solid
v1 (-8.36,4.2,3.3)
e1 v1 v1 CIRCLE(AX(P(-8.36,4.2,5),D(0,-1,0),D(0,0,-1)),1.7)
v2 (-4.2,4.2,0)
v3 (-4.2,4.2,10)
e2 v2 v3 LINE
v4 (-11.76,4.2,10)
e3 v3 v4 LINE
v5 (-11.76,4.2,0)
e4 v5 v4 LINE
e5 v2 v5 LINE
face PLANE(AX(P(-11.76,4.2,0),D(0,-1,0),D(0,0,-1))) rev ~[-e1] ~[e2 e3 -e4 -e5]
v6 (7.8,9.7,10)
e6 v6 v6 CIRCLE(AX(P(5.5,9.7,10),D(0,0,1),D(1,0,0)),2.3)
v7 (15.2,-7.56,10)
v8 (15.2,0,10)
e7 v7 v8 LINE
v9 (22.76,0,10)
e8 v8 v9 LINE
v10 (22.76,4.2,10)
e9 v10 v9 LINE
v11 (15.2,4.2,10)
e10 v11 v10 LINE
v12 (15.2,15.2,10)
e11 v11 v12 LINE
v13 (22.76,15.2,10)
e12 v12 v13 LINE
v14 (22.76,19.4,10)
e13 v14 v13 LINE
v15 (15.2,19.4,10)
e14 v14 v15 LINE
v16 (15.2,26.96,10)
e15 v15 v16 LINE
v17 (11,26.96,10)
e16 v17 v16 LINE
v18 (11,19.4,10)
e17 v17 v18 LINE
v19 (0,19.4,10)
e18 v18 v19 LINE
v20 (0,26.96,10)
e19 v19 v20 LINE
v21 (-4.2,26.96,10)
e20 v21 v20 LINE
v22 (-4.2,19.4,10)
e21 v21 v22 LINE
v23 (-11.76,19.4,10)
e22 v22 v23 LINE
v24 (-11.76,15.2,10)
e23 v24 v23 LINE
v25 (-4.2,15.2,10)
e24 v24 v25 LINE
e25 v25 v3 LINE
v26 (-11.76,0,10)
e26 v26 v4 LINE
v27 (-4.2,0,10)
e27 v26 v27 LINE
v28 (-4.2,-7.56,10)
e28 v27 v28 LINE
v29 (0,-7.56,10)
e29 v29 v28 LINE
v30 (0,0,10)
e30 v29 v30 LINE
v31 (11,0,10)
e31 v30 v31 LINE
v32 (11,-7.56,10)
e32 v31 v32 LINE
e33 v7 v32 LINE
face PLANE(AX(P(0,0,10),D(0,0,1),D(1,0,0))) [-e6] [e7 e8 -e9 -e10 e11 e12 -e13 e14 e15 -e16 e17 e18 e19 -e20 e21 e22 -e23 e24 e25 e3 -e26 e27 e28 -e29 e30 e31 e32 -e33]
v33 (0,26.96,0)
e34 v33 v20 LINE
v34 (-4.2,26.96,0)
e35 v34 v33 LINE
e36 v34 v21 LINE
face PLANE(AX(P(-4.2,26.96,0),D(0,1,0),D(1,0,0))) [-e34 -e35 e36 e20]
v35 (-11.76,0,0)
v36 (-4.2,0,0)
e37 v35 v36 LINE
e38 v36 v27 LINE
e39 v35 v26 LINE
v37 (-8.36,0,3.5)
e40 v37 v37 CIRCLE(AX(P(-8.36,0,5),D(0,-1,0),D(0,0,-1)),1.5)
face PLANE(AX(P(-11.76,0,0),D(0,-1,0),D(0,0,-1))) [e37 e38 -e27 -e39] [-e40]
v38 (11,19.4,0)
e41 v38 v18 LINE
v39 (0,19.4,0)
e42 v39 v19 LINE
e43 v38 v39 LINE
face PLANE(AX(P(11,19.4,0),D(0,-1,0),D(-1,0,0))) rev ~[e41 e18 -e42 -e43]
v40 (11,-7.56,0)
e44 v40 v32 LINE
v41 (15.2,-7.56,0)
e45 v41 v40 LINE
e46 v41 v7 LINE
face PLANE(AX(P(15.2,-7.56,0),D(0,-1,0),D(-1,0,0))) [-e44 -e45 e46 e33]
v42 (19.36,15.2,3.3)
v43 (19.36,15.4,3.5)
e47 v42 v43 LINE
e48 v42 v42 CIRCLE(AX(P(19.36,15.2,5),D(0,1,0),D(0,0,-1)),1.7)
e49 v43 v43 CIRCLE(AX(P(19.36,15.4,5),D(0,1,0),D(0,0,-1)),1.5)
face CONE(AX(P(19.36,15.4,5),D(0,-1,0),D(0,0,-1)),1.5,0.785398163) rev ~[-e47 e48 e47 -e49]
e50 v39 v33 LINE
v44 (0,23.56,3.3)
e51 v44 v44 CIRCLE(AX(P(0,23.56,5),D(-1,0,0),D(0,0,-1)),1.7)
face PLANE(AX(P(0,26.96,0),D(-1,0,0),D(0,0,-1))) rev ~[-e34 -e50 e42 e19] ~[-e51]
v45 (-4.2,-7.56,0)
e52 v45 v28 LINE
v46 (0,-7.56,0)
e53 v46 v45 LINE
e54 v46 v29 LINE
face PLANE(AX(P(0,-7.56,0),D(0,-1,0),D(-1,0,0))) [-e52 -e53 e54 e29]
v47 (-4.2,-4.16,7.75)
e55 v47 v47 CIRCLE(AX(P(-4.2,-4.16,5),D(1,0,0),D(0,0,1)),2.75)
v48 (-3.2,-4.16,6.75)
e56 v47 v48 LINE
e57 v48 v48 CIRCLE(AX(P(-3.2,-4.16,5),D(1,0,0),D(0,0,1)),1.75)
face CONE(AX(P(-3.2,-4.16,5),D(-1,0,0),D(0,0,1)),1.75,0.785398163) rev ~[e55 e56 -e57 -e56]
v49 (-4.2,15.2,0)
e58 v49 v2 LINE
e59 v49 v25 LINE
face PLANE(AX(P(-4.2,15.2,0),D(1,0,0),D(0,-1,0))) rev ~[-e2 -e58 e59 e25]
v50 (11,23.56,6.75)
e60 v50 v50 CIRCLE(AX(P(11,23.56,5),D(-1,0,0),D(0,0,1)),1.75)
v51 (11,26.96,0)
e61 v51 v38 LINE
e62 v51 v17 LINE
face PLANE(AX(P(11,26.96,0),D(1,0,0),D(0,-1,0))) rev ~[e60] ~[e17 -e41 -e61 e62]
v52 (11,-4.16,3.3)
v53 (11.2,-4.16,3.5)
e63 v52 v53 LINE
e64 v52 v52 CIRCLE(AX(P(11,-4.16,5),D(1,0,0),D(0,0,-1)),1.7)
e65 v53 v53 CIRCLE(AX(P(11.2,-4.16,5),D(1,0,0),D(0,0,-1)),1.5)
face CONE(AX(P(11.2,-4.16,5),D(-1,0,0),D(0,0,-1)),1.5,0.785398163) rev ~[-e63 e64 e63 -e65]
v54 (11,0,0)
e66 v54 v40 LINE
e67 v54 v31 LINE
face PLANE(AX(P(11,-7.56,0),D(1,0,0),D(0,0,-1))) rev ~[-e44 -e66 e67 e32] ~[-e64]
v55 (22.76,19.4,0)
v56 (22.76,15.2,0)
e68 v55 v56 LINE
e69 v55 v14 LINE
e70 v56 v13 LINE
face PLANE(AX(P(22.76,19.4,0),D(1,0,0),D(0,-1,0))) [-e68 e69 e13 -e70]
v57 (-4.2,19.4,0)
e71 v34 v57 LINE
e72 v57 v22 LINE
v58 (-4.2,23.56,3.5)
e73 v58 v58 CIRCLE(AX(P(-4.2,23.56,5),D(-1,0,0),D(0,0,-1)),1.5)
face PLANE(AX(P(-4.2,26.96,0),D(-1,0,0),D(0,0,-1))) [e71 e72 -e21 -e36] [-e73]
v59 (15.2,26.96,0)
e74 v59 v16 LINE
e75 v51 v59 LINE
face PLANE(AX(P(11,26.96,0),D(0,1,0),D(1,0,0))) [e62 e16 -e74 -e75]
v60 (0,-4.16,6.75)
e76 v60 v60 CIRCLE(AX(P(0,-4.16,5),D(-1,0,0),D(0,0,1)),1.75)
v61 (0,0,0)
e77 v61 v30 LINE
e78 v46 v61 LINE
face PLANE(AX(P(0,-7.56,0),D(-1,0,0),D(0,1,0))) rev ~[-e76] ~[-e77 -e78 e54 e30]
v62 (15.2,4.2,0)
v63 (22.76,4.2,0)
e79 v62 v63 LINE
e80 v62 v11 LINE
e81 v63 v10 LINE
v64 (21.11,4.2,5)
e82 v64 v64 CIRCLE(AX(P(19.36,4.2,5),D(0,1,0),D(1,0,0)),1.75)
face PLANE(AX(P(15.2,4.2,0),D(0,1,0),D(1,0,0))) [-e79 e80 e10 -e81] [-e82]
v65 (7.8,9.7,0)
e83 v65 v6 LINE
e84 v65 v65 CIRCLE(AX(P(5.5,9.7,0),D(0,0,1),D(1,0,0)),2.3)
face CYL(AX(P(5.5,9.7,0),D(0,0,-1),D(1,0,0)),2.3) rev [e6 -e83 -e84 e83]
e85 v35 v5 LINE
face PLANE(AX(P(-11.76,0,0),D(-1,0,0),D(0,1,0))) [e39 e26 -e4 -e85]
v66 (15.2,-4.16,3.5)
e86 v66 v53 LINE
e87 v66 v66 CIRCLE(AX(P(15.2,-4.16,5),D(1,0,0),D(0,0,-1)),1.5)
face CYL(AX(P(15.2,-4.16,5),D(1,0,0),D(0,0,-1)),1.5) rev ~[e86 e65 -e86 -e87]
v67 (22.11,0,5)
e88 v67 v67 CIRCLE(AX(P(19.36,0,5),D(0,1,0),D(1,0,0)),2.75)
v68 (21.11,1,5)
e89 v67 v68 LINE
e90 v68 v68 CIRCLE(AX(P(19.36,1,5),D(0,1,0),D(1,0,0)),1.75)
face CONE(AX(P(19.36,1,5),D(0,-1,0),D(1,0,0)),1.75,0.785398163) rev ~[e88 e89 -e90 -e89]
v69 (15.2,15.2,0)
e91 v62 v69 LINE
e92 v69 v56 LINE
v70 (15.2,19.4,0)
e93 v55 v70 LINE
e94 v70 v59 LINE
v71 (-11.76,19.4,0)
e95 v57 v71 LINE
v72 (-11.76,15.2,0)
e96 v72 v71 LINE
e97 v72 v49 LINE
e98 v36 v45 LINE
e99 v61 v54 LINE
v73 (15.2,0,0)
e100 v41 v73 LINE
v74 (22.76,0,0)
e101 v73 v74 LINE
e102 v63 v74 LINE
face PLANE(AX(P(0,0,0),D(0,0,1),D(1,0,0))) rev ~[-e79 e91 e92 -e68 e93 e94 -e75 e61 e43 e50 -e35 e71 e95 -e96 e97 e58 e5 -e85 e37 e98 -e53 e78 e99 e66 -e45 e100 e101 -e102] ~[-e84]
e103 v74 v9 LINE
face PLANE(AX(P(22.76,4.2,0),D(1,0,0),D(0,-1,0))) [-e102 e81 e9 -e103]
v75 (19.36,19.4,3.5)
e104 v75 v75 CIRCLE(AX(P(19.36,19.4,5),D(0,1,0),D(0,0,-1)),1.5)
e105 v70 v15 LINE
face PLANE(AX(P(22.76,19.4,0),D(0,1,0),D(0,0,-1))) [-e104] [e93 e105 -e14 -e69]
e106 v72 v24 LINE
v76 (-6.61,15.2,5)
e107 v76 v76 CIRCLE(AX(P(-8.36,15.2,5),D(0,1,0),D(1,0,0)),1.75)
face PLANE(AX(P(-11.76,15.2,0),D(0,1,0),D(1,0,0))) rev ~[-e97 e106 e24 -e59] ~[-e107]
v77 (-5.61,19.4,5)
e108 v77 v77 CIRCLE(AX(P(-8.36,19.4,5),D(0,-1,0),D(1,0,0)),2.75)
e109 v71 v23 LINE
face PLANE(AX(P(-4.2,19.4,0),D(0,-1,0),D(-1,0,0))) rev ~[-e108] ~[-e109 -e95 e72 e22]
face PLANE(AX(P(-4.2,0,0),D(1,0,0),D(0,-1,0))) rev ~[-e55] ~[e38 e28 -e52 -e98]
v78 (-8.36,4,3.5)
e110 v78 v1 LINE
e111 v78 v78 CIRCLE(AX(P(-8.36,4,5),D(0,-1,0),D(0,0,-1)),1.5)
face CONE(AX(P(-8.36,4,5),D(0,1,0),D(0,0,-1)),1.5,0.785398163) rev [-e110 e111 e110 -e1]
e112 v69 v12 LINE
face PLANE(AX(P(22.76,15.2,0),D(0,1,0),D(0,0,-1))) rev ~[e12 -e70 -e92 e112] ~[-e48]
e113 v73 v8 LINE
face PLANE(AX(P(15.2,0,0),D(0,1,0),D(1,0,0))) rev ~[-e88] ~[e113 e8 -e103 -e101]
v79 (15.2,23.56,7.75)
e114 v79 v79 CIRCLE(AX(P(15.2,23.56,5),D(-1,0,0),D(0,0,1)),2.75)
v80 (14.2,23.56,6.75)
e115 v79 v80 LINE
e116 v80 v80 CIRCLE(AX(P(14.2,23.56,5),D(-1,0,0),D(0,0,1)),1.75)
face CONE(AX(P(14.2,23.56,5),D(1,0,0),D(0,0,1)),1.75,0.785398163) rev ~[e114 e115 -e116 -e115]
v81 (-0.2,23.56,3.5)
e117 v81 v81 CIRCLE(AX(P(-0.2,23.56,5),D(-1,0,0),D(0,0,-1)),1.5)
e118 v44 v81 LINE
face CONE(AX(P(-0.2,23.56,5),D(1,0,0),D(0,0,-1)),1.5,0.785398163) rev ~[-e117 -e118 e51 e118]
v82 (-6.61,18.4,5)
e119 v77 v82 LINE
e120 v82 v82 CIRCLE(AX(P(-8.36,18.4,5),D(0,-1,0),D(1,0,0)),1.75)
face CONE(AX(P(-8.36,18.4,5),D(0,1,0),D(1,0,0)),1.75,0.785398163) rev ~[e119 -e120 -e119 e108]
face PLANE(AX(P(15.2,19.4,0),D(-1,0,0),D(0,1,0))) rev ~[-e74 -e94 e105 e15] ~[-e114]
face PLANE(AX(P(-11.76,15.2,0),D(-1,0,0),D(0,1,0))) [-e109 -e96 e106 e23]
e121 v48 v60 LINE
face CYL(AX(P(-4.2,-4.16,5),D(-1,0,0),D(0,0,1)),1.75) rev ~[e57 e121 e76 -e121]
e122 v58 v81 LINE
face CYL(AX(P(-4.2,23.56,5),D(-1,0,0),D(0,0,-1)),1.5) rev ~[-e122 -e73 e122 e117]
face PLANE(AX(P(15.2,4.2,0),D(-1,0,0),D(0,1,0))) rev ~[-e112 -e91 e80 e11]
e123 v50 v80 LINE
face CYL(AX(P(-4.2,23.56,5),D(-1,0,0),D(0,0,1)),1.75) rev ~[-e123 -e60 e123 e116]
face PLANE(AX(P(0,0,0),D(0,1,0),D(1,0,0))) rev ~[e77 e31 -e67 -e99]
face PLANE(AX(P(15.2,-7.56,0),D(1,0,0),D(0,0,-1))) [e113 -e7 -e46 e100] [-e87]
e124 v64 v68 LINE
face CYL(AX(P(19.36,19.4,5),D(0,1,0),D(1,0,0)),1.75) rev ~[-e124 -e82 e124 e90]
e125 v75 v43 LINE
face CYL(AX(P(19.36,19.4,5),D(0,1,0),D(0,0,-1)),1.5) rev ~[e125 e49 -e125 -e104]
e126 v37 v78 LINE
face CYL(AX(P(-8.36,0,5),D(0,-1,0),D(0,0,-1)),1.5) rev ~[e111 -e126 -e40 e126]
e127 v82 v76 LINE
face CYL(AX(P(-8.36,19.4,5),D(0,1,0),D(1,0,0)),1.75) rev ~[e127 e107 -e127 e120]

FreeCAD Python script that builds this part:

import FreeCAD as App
import Part
import Sketcher


def edges_at(feature, points):
    """Names of the edges that pass closest to the given points."""
    edges = feature.Shape.Edges
    near = lambda p: min(range(len(edges)), key=lambda i: edges[i].distToShape(Part.Vertex(*p))[0])
    return sorted({f"Edge{near(p) + 1}" for p in points})

doc = App.newDocument("Part")
body = doc.addObject("PartDesign::Body", "Body")

# Sketch on XY plane
sketch1 = doc.addObject("Sketcher::SketchObject", "Sketch")
body.addObject(sketch1)
sketch1.AttachmentSupport = (doc.XY_Plane, [""])
sketch1.MapMode = "FlatFace"
sketch1.addGeometry([
    Part.LineSegment(App.Vector(-4.2, -7.6, 0), App.Vector(0, -7.6, 0)),  # 0
    Part.LineSegment(App.Vector(0, -7.6, 0), App.Vector(0, 0, 0)),  # 1
    Part.LineSegment(App.Vector(0, 0, 0), App.Vector(11, 0, 0)),  # 2
    Part.LineSegment(App.Vector(11, 0, 0), App.Vector(11, -7.6, 0)),  # 3
    Part.LineSegment(App.Vector(11, -7.6, 0), App.Vector(15.2, -7.6, 0)),  # 4
    Part.LineSegment(App.Vector(15.2, -7.6, 0), App.Vector(15.2, 0, 0)),  # 5
    Part.LineSegment(App.Vector(15.2, 0, 0), App.Vector(22.8, 0, 0)),  # 6
    Part.LineSegment(App.Vector(22.8, 0, 0), App.Vector(22.8, 4.2, 0)),  # 7
    Part.LineSegment(App.Vector(22.8, 4.2, 0), App.Vector(15.2, 4.2, 0)),  # 8
    Part.LineSegment(App.Vector(15.2, 4.2, 0), App.Vector(15.2, 15.2, 0)),  # 9
    Part.LineSegment(App.Vector(15.2, 15.2, 0), App.Vector(22.8, 15.2, 0)),  # 10
    Part.LineSegment(App.Vector(22.8, 15.2, 0), App.Vector(22.8, 19.4, 0)),  # 11
    Part.LineSegment(App.Vector(22.8, 19.4, 0), App.Vector(15.2, 19.4, 0)),  # 12
    Part.LineSegment(App.Vector(15.2, 19.4, 0), App.Vector(15.2, 27, 0)),  # 13
    Part.LineSegment(App.Vector(15.2, 27, 0), App.Vector(11, 27, 0)),  # 14
    Part.LineSegment(App.Vector(11, 27, 0), App.Vector(11, 19.4, 0)),  # 15
    Part.LineSegment(App.Vector(11, 19.4, 0), App.Vector(0, 19.4, 0)),  # 16
    Part.LineSegment(App.Vector(0, 19.4, 0), App.Vector(0, 27, 0)),  # 17
    Part.LineSegment(App.Vector(0, 27, 0), App.Vector(-4.2, 27, 0)),  # 18
    Part.LineSegment(App.Vector(-4.2, 27, 0), App.Vector(-4.2, 19.4, 0)),  # 19
    Part.LineSegment(App.Vector(-4.2, 19.4, 0), App.Vector(-11.8, 19.4, 0)),  # 20
    Part.LineSegment(App.Vector(-11.8, 19.4, 0), App.Vector(-11.8, 15.2, 0)),  # 21
    Part.LineSegment(App.Vector(-11.8, 15.2, 0), App.Vector(-4.2, 15.2, 0)),  # 22
    Part.LineSegment(App.Vector(-4.2, 15.2, 0), App.Vector(-4.2, 4.2, 0)),  # 23
    Part.LineSegment(App.Vector(-4.2, 4.2, 0), App.Vector(-11.8, 4.2, 0)),  # 24
    Part.LineSegment(App.Vector(-11.8, 4.2, 0), App.Vector(-11.8, 0, 0)),  # 25
    Part.LineSegment(App.Vector(-11.8, 0, 0), App.Vector(-4.2, 0, 0)),  # 26
    Part.LineSegment(App.Vector(-4.2, 0, 0), App.Vector(-4.2, -7.6, 0)),  # 27
    Part.Circle(App.Vector(5.5, 9.7, 0), App.Vector(0, 0, 1), 2.3),  # 28
], False)
sketch1.addConstraint([
    Sketcher.Constraint("Coincident", 0, 2, 1, 1),
    Sketcher.Constraint("Coincident", 1, 2, 2, 1),
    Sketcher.Constraint("Coincident", 2, 2, 3, 1),
    Sketcher.Constraint("Coincident", 3, 2, 4, 1),
    Sketcher.Constraint("Coincident", 4, 2, 5, 1),
    Sketcher.Constraint("Coincident", 5, 2, 6, 1),
    Sketcher.Constraint("Coincident", 6, 2, 7, 1),
    Sketcher.Constraint("Coincident", 7, 2, 8, 1),
    Sketcher.Constraint("Coincident", 8, 2, 9, 1),
    Sketcher.Constraint("Coincident", 9, 2, 10, 1),
    Sketcher.Constraint("Coincident", 10, 2, 11, 1),
    Sketcher.Constraint("Coincident", 11, 2, 12, 1),
    Sketcher.Constraint("Coincident", 12, 2, 13, 1),
    Sketcher.Constraint("Coincident", 13, 2, 14, 1),
    Sketcher.Constraint("Coincident", 14, 2, 15, 1),
    Sketcher.Constraint("Coincident", 15, 2, 16, 1),
    Sketcher.Constraint("Coincident", 16, 2, 17, 1),
    Sketcher.Constraint("Coincident", 17, 2, 18, 1),
    Sketcher.Constraint("Coincident", 18, 2, 19, 1),
    Sketcher.Constraint("Coincident", 19, 2, 20, 1),
    Sketcher.Constraint("Coincident", 20, 2, 21, 1),
    Sketcher.Constraint("Coincident", 21, 2, 22, 1),
    Sketcher.Constraint("Coincident", 22, 2, 23, 1),
    Sketcher.Constraint("Coincident", 23, 2, 24, 1),
    Sketcher.Constraint("Coincident", 24, 2, 25, 1),
    Sketcher.Constraint("Coincident", 25, 2, 26, 1),
    Sketcher.Constraint("Coincident", 26, 2, 27, 1),
    Sketcher.Constraint("Coincident", 27, 2, 0, 1),
    Sketcher.Constraint("Horizontal", 0),
    Sketcher.Constraint("Vertical", 1),
    Sketcher.Constraint("Horizontal", 2),
    Sketcher.Constraint("Vertical", 3),
    Sketcher.Constraint("Horizontal", 4),
    Sketcher.Constraint("Vertical", 5),
    Sketcher.Constraint("Horizontal", 6),
    Sketcher.Constraint("Vertical", 7),
    Sketcher.Constraint("Horizontal", 8),
    Sketcher.Constraint("Vertical", 9),
    Sketcher.Constraint("Horizontal", 10),
    Sketcher.Constraint("Vertical", 11),
    Sketcher.Constraint("Horizontal", 12),
    Sketcher.Constraint("Vertical", 13),
    Sketcher.Constraint("Horizontal", 14),
    Sketcher.Constraint("Vertical", 15),
    Sketcher.Constraint("Horizontal", 16),
    Sketcher.Constraint("Vertical", 17),
    Sketcher.Constraint("Horizontal", 18),
    Sketcher.Constraint("Vertical", 19),
    Sketcher.Constraint("Horizontal", 20),
    Sketcher.Constraint("Vertical", 21),
    Sketcher.Constraint("Horizontal", 22),
    Sketcher.Constraint("Vertical", 23),
    Sketcher.Constraint("Horizontal", 24),
    Sketcher.Constraint("Vertical", 25),
    Sketcher.Constraint("Horizontal", 26),
    Sketcher.Constraint("Vertical", 27),
    Sketcher.Constraint("Coincident", 1, 2, -1, 1),
    Sketcher.Constraint("PointOnObject", 5, 2, -1),
    Sketcher.Constraint("PointOnObject", 16, 2, -2),
    Sketcher.Constraint("PointOnObject", 25, 2, -1),
    Sketcher.Constraint("Horizontal", 0, 2, 3, 2),
    Sketcher.Constraint("Horizontal", 12, 2, 15, 2),
    Sketcher.Constraint("Horizontal", 14, 2, 17, 2),
    Sketcher.Constraint("Horizontal", 16, 2, 19, 2),
    Sketcher.Constraint("Horizontal", 10, 2, 21, 2),
    Sketcher.Constraint("Horizontal", 8, 2, 23, 2),
    Sketcher.Constraint("Vertical", 5, 2, 8, 2),
    Sketcher.Constraint("Vertical", 7, 2, 10, 2),
    Sketcher.Constraint("Vertical", 9, 2, 12, 2),
    Sketcher.Constraint("Vertical", 3, 2, 14, 2),
    Sketcher.Constraint("Vertical", 19, 2, 22, 2),
    Sketcher.Constraint("Vertical", 21, 2, 24, 2),
    Sketcher.Constraint("Vertical", 23, 2, 26, 2),
    Sketcher.Constraint("Equal", 0, 4),
    Sketcher.Constraint("Equal", 12, 20),
    Sketcher.Constraint("Equal", 26, 1),
    Sketcher.Constraint("Equal", 18, 7),
    Sketcher.Constraint("Equal", 16, 9),
    Sketcher.Constraint("Equal", 7, 11),
    Sketcher.Constraint("Equal", 5, 13),
    Sketcher.Constraint("Diameter", 28, 4.6),
    Sketcher.Constraint("DistanceX", 2, 1, 2, 2, 11.0),
    Sketcher.Constraint("DistanceX", 0, 1, 0, 2, 4.2),
    Sketcher.Constraint("DistanceX", 6, 1, 6, 2, 7.56),
    Sketcher.Constraint("DistanceX", -1, 1, 28, 3, 5.5),
    Sketcher.Constraint("DistanceY", -1, 1, 28, 3, 9.7),
])
pad1 = doc.addObject("PartDesign::Pad", "Pad")
body.addObject(pad1)
pad1.Profile = sketch1
pad1.Length = 10

# Sketch on XZ plane
sketch2 = doc.addObject("Sketcher::SketchObject", "Sketch001")
body.addObject(sketch2)
sketch2.AttachmentSupport = (doc.XZ_Plane, [""])
sketch2.MapMode = "FlatFace"
sketch2.AttachmentOffset = App.Placement(App.Vector(0, 0, -19.4), App.Rotation())
sketch2.addGeometry([
    Part.Circle(App.Vector(-8.4, 5, 0), App.Vector(0, 0, 1), 1.8),
    Part.Circle(App.Vector(19.4, 5, 0), App.Vector(0, 0, 1), 1.8),
], False)
sketch2.addConstraint([
    Sketcher.Constraint("Equal", 0, 1),
    Sketcher.Constraint("Horizontal", 0, 3, 1, 3),
    Sketcher.Constraint("Diameter", 0, 3.5),
    Sketcher.Constraint("DistanceY", -1, 1, 0, 3, 5.0),
    Sketcher.Constraint("DistanceX", 0, 3, -1, 1, 8.36),
    Sketcher.Constraint("DistanceX", -1, 1, 1, 3, 19.36),
])
pocket1 = doc.addObject("PartDesign::Pocket", "Pocket")
body.addObject(pocket1)
pocket1.Profile = sketch2
pocket1.Type = "ThroughAll"
pocket1.Reversed = True

# Sketch on YZ plane
sketch3 = doc.addObject("Sketcher::SketchObject", "Sketch002")
body.addObject(sketch3)
sketch3.AttachmentSupport = (doc.YZ_Plane, [""])
sketch3.MapMode = "FlatFace"
sketch3.AttachmentOffset = App.Placement(App.Vector(0, 0, -4.2), App.Rotation())
sketch3.addGeometry([
    Part.Circle(App.Vector(-4.2, 5, 0), App.Vector(0, 0, 1), 1.8),
    Part.Circle(App.Vector(23.6, 5, 0), App.Vector(0, 0, 1), 1.8),
], False)
sketch3.addConstraint([
    Sketcher.Constraint("Equal", 0, 1),
    Sketcher.Constraint("Horizontal", 0, 3, 1, 3),
    Sketcher.Constraint("Diameter", 0, 3.5),
    Sketcher.Constraint("DistanceY", -1, 1, 0, 3, 5.0),
    Sketcher.Constraint("DistanceX", 0, 3, -1, 1, 4.16),
    Sketcher.Constraint("DistanceX", -1, 1, 1, 3, 23.56),
])
pocket2 = doc.addObject("PartDesign::Pocket", "Pocket001")
body.addObject(pocket2)
pocket2.Profile = sketch3
pocket2.Type = "ThroughAll"
pocket2.Reversed = True
doc.recompute()

chamfer = doc.addObject("PartDesign::Chamfer", "Chamfer")
body.addObject(chamfer)
chamfer.Base = (pocket2, edges_at(pocket2, [
    (-4.2, -4.16, 3.25),
    (17.61, 0, 5),
    (15.2, 23.56, 3.25),
    (-10.11, 19.4, 5),
]))
chamfer.Size = 1

# Sketch on YZ plane
sketch4 = doc.addObject("Sketcher::SketchObject", "Sketch003")
body.addObject(sketch4)
sketch4.AttachmentSupport = (doc.YZ_Plane, [""])
sketch4.MapMode = "FlatFace"
sketch4.AttachmentOffset = App.Placement(App.Vector(0, 0, 15.2), App.Rotation())
sketch4.addGeometry([
    Part.Circle(App.Vector(-4.2, 5, 0), App.Vector(0, 0, 1), 1.8),
    Part.Circle(App.Vector(-4.2, 5, 0), App.Vector(0, 0, 1), 1.5),
], False)
sketch4.addConstraint([
    Sketcher.Constraint("Coincident", 1, 3, 0, 3),
    Sketcher.Constraint("Diameter", 1, 3.0),
    Sketcher.Constraint("Diameter", 0, 3.5),
    Sketcher.Constraint("DistanceY", -1, 1, 0, 3, 5.0),
    Sketcher.Constraint("DistanceX", 0, 3, -1, 1, 4.16),
])
pad2 = doc.addObject("PartDesign::Pad", "Pad001")
body.addObject(pad2)
pad2.Profile = sketch4
pad2.Length = 4.2
pad2.Reversed = True
doc.recompute()

datumline = doc.addObject("PartDesign::Line", "DatumLine")
body.addObject(datumline)
datumline.Placement = App.Placement(App.Vector(5.5, 9.7, 0), App.Rotation(App.Vector(0, 0, 1), App.Vector(0, 0, 1)))
polarpattern = doc.addObject("PartDesign::PolarPattern", "PolarPattern")
body.addObject(polarpattern)
polarpattern.Originals = [pad2]
polarpattern.Axis = (datumline, [""])
polarpattern.Angle = 360
polarpattern.Occurrences = 4
body.Tip = polarpattern
doc.recompute()

chamfer2 = doc.addObject("PartDesign::Chamfer", "Chamfer001")
body.addObject(chamfer2)
chamfer2.Base = (polarpattern, edges_at(polarpattern, [
    (11, -4.16, 6.5),
    (-8.36, 4.2, 6.5),
    (0, 23.56, 6.5),
    (19.36, 15.2, 6.5),
]))
chamfer2.Size = 0.2

doc.recompute()
